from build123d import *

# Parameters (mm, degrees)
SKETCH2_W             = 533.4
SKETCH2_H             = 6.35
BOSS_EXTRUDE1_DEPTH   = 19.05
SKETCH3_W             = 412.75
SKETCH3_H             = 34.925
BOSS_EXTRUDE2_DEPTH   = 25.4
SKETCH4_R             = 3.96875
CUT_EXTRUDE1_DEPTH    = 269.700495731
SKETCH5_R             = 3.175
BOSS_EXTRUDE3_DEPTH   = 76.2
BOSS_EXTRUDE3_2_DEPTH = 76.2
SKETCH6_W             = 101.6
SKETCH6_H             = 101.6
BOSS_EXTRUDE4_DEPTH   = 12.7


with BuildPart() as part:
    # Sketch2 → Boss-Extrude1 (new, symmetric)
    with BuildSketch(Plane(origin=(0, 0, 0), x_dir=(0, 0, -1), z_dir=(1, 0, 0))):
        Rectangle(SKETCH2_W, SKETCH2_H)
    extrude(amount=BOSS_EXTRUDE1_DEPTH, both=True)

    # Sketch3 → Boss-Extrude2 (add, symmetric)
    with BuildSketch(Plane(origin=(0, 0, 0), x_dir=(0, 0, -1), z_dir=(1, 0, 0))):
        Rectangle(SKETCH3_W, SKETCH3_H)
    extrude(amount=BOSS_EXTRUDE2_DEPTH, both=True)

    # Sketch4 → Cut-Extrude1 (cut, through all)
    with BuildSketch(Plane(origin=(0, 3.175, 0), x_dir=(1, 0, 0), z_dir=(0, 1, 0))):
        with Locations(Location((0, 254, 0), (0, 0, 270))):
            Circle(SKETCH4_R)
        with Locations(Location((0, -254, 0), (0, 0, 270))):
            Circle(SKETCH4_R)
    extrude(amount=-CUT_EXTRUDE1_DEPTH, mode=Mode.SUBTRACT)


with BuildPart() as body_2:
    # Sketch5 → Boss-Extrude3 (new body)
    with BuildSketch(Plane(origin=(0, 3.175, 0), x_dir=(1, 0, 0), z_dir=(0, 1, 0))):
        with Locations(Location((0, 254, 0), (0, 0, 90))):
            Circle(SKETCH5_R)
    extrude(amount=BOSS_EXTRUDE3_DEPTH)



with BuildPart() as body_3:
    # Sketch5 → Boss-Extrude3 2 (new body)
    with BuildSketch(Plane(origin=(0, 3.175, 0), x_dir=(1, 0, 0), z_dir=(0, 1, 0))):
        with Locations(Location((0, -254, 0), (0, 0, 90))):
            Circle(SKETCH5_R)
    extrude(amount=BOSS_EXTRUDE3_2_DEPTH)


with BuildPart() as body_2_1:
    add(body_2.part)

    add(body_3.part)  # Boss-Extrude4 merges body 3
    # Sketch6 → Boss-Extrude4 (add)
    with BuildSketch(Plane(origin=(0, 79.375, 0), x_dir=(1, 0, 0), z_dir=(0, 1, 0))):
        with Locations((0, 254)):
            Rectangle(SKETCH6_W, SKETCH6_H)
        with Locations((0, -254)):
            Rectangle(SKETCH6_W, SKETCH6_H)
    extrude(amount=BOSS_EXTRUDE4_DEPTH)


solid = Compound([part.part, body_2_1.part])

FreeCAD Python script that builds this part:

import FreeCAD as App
import Part
import Sketcher

V = App.Vector
Q = App.Units.Quantity

doc = App.newDocument("Part")
params = doc.addObject("Spreadsheet::Sheet", "Params")
for row, (alias, value) in enumerate([
    ("sketch1_height", "21 in"),
    ("sketch1_width", "0.25 in"),
    ("pad1_length", "1.5 in"),
    ("sketch2_height", "16.25 in"),
    ("sketch2_width", "1.375 in"),
    ("pad2_length", "2 in"),
    ("sketch3_diameter", "0.3125 in"),
    ("sketch4_diameter", "0.25 in"),
    ("pad3_length", "3 in"),
    ("sketch5_diameter", "0.25 in"),
    ("pad4_length", "3 in"),
    ("sketch6_width", "4 in"),
    ("pad5_length", "0.5 in"),
], start=1):
    params.set(f"A{row}", alias)
    params.set(f"B{row}", "=" + value)
    params.setAlias(f"B{row}", alias)

body = doc.addObject("PartDesign::Body", "Body")

# Sketch on YZ plane
sketch1 = doc.addObject("Sketcher::SketchObject", "Sketch")
body.addObject(sketch1)
sketch1.AttachmentSupport = (doc.YZ_Plane, [""])
sketch1.MapMode = "FlatFace"
sketch1.addGeometry(Part.LineSegment(V(3, 267, 0), V(-3, 267, 0)), False)
sketch1.addGeometry(Part.LineSegment(V(-3, 267, 0), V(-3, -267, 0)), False)
sketch1.addGeometry(Part.LineSegment(V(-3, -267, 0), V(3, -267, 0)), False)
sketch1.addGeometry(Part.LineSegment(V(3, -267, 0), V(3, 267, 0)), False)
sketch1.addConstraint(Sketcher.Constraint("Coincident", 0, 2, 1, 1))
sketch1.addConstraint(Sketcher.Constraint("Coincident", 1, 2, 2, 1))
sketch1.addConstraint(Sketcher.Constraint("Coincident", 2, 2, 3, 1))
sketch1.addConstraint(Sketcher.Constraint("Coincident", 3, 2, 0, 1))
sketch1.addConstraint(Sketcher.Constraint("Horizontal", 0))
sketch1.addConstraint(Sketcher.Constraint("Vertical", 1))
sketch1.addConstraint(Sketcher.Constraint("Horizontal", 2))
sketch1.addConstraint(Sketcher.Constraint("Vertical", 3))
sketch1.addConstraint(Sketcher.Constraint("Symmetric", 0, 2, 2, 2, -1, 1))
sketch1.addConstraint(Sketcher.Constraint("DistanceY", 1, 2, 1, 1, Q("21 in")))
sketch1.addConstraint(Sketcher.Constraint("DistanceX", 0, 2, 0, 1, Q("0.25 in")))
sketch1.setExpression("Constraints[9]", "Params.sketch1_height")
sketch1.setExpression("Constraints[10]", "Params.sketch1_width")
pad1 = doc.addObject("PartDesign::Pad", "Pad")
body.addObject(pad1)
pad1.Profile = sketch1
pad1.setExpression("Length", "Params.pad1_length")
pad1.Midplane = True

# Sketch on YZ plane
sketch2 = doc.addObject("Sketcher::SketchObject", "Sketch001")
body.addObject(sketch2)
sketch2.AttachmentSupport = (doc.YZ_Plane, [""])
sketch2.MapMode = "FlatFace"
sketch2.addGeometry(Part.LineSegment(V(17, 206, 0), V(-17, 206, 0)), False)
sketch2.addGeometry(Part.LineSegment(V(-17, 206, 0), V(-17, -206, 0)), False)
sketch2.addGeometry(Part.LineSegment(V(-17, -206, 0), V(17, -206, 0)), False)
sketch2.addGeometry(Part.LineSegment(V(17, -206, 0), V(17, 206, 0)), False)
sketch2.addConstraint(Sketcher.Constraint("Coincident", 0, 2, 1, 1))
sketch2.addConstraint(Sketcher.Constraint("Coincident", 1, 2, 2, 1))
sketch2.addConstraint(Sketcher.Constraint("Coincident", 2, 2, 3, 1))
sketch2.addConstraint(Sketcher.Constraint("Coincident", 3, 2, 0, 1))
sketch2.addConstraint(Sketcher.Constraint("Horizontal", 0))
sketch2.addConstraint(Sketcher.Constraint("Vertical", 1))
sketch2.addConstraint(Sketcher.Constraint("Horizontal", 2))
sketch2.addConstraint(Sketcher.Constraint("Vertical", 3))
sketch2.addConstraint(Sketcher.Constraint("Symmetric", 0, 2, 2, 2, -1, 1))
sketch2.addConstraint(Sketcher.Constraint("DistanceY", 1, 2, 1, 1, Q("16.25 in")))
sketch2.addConstraint(Sketcher.Constraint("DistanceX", 0, 2, 0, 1, Q("1.375 in")))
sketch2.setExpression("Constraints[9]", "Params.sketch2_height")
sketch2.setExpression("Constraints[10]", "Params.sketch2_width")
pad2 = doc.addObject("PartDesign::Pad", "Pad001")
body.addObject(pad2)
pad2.Profile = sketch2
pad2.setExpression("Length", "Params.pad2_length")
pad2.Midplane = True

# Sketch on XZ plane
sketch3 = doc.addObject("Sketcher::SketchObject", "Sketch002")
body.addObject(sketch3)
sketch3.AttachmentSupport = (doc.XZ_Plane, [""])
sketch3.MapMode = "FlatFace"
sketch3.AttachmentOffset = App.Placement(V(0, 0, -0.125 * 25.4), App.Rotation())
sketch3.addGeometry(Part.Circle(V(0, -254, 0), V(0, 0, 1), 4), False)
sketch3.addGeometry(Part.Circle(V(0, 254, 0), V(0, 0, 1), 4), False)
sketch3.addConstraint(Sketcher.Constraint("Equal", 0, 1))
sketch3.addConstraint(Sketcher.Constraint("Symmetric", 0, 3, 1, 3, -1, 1))
sketch3.addConstraint(Sketcher.Constraint("PointOnObject", 0, 3, -2))
sketch3.addConstraint(Sketcher.Constraint("Diameter", 0, Q("0.3125 in")))
sketch3.addConstraint(Sketcher.Constraint("DistanceY", 0, 3, -1, 1, Q("10 in")))
sketch3.setExpression("Constraints[3]", "Params.sketch3_diameter")
pocket1 = doc.addObject("PartDesign::Pocket", "Pocket")
body.addObject(pocket1)
pocket1.Profile = sketch3
pocket1.Type = "ThroughAll"
pocket1.Reversed = True
body2 = doc.addObject("PartDesign::Body", "Body001")

# Sketch on XZ plane
sketch4 = doc.addObject("Sketcher::SketchObject", "Sketch003")
body2.addObject(sketch4)
sketch4.AttachmentSupport = (doc.getObject("XZ_Plane001"), [""])
sketch4.MapMode = "FlatFace"
sketch4.AttachmentOffset = App.Placement(V(0, 0, -0.125 * 25.4), App.Rotation())
sketch4.addGeometry(Part.Circle(V(0, -254, 0), V(0, 0, 1), 3.2), False)
sketch4.addConstraint(Sketcher.Constraint("PointOnObject", 0, 3, -2))
sketch4.addConstraint(Sketcher.Constraint("Diameter", 0, Q("0.25 in")))
sketch4.addConstraint(Sketcher.Constraint("DistanceY", 0, 3, -1, 1, Q("10 in")))
sketch4.setExpression("Constraints[1]", "Params.sketch4_diameter")
pad3 = doc.addObject("PartDesign::Pad", "Pad002")
body2.addObject(pad3)
pad3.Profile = sketch4
pad3.setExpression("Length", "Params.pad3_length")
pad3.Reversed = True
body3 = doc.addObject("PartDesign::Body", "Body002")

# Sketch on XZ plane
sketch5 = doc.addObject("Sketcher::SketchObject", "Sketch004")
body3.addObject(sketch5)
sketch5.AttachmentSupport = (doc.getObject("XZ_Plane002"), [""])
sketch5.MapMode = "FlatFace"
sketch5.AttachmentOffset = App.Placement(V(0, 0, -0.125 * 25.4), App.Rotation())
sketch5.addGeometry(Part.Circle(V(0, 254, 0), V(0, 0, 1), 3.2), False)
sketch5.addConstraint(Sketcher.Constraint("PointOnObject", 0, 3, -2))
sketch5.addConstraint(Sketcher.Constraint("Diameter", 0, Q("0.25 in")))
sketch5.addConstraint(Sketcher.Constraint("DistanceY", -1, 1, 0, 3, Q("10 in")))
sketch5.setExpression("Constraints[1]", "Params.sketch5_diameter")
pad4 = doc.addObject("PartDesign::Pad", "Pad003")
body3.addObject(pad4)
pad4.Profile = sketch5
pad4.setExpression("Length", "Params.pad4_length")
pad4.Reversed = True
body2.AllowCompound = True
doc.recompute()

boolean = doc.addObject("PartDesign::Boolean", "Boolean")
body2.addObject(boolean)
boolean.Type = "Fuse"
boolean.addObjects([body3])

# Sketch on XZ plane
sketch6 = doc.addObject("Sketcher::SketchObject", "Sketch005")
body2.addObject(sketch6)
sketch6.AttachmentSupport = (doc.getObject("XZ_Plane001"), [""])
sketch6.MapMode = "FlatFace"
sketch6.AttachmentOffset = App.Placement(V(0, 0, -3.125 * 25.4), App.Rotation())
sketch6.addGeometry(Part.LineSegment(V(-51, -305, 0), V(-51, -203, 0)), False)
sketch6.addGeometry(Part.LineSegment(V(-51, -203, 0), V(51, -203, 0)), False)
sketch6.addGeometry(Part.LineSegment(V(51, -203, 0), V(51, -305, 0)), False)
sketch6.addGeometry(Part.LineSegment(V(51, -305, 0), V(-51, -305, 0)), False)
sketch6.addGeometry(Part.LineSegment(V(-51, 203, 0), V(-51, 305, 0)), False)
sketch6.addGeometry(Part.LineSegment(V(-51, 305, 0), V(51, 305, 0)), False)
sketch6.addGeometry(Part.LineSegment(V(51, 305, 0), V(51, 203, 0)), False)
sketch6.addGeometry(Part.LineSegment(V(51, 203, 0), V(-51, 203, 0)), False)
sketch6.addConstraint(Sketcher.Constraint("Coincident", 0, 2, 1, 1))
sketch6.addConstraint(Sketcher.Constraint("Coincident", 1, 2, 2, 1))
sketch6.addConstraint(Sketcher.Constraint("Coincident", 2, 2, 3, 1))
sketch6.addConstraint(Sketcher.Constraint("Coincident", 3, 2, 0, 1))
sketch6.addConstraint(Sketcher.Constraint("Coincident", 4, 2, 5, 1))
sketch6.addConstraint(Sketcher.Constraint("Coincident", 5, 2, 6, 1))
sketch6.addConstraint(Sketcher.Constraint("Coincident", 6, 2, 7, 1))
sketch6.addConstraint(Sketcher.Constraint("Coincident", 7, 2, 4, 1))
sketch6.addConstraint(Sketcher.Constraint("Vertical", 0))
sketch6.addConstraint(Sketcher.Constraint("Horizontal", 1))
sketch6.addConstraint(Sketcher.Constraint("Vertical", 2))
sketch6.addConstraint(Sketcher.Constraint("Horizontal", 3))
sketch6.addConstraint(Sketcher.Constraint("Vertical", 4))
sketch6.addConstraint(Sketcher.Constraint("Horizontal", 5))
sketch6.addConstraint(Sketcher.Constraint("Vertical", 6))
sketch6.addConstraint(Sketcher.Constraint("Horizontal", 7))
sketch6.addConstraint(Sketcher.Constraint("Symmetric", 2, 2, 4, 2, -1, 1))
sketch6.addConstraint(Sketcher.Constraint("Symmetric", 0, 2, 6, 2, -1, 1))
sketch6.addConstraint(Sketcher.Constraint("Vertical", 3, 2, 4, 2))
sketch6.addConstraint(Sketcher.Constraint("Equal", 7, 0))
sketch6.addConstraint(Sketcher.Constraint("DistanceX", 1, 1, 1, 2, Q("4 in")))
sketch6.addConstraint(Sketcher.Constraint("DistanceY", 0, 2, -1, 1, Q("8 in")))
sketch6.setExpression("Constraints[20]", "Params.sketch6_width")
pad5 = doc.addObject("PartDesign::Pad", "Pad004")
body2.addObject(pad5)
pad5.Profile = sketch6
pad5.setExpression("Length", "Params.pad5_length")
pad5.Reversed = True

doc.recompute()
